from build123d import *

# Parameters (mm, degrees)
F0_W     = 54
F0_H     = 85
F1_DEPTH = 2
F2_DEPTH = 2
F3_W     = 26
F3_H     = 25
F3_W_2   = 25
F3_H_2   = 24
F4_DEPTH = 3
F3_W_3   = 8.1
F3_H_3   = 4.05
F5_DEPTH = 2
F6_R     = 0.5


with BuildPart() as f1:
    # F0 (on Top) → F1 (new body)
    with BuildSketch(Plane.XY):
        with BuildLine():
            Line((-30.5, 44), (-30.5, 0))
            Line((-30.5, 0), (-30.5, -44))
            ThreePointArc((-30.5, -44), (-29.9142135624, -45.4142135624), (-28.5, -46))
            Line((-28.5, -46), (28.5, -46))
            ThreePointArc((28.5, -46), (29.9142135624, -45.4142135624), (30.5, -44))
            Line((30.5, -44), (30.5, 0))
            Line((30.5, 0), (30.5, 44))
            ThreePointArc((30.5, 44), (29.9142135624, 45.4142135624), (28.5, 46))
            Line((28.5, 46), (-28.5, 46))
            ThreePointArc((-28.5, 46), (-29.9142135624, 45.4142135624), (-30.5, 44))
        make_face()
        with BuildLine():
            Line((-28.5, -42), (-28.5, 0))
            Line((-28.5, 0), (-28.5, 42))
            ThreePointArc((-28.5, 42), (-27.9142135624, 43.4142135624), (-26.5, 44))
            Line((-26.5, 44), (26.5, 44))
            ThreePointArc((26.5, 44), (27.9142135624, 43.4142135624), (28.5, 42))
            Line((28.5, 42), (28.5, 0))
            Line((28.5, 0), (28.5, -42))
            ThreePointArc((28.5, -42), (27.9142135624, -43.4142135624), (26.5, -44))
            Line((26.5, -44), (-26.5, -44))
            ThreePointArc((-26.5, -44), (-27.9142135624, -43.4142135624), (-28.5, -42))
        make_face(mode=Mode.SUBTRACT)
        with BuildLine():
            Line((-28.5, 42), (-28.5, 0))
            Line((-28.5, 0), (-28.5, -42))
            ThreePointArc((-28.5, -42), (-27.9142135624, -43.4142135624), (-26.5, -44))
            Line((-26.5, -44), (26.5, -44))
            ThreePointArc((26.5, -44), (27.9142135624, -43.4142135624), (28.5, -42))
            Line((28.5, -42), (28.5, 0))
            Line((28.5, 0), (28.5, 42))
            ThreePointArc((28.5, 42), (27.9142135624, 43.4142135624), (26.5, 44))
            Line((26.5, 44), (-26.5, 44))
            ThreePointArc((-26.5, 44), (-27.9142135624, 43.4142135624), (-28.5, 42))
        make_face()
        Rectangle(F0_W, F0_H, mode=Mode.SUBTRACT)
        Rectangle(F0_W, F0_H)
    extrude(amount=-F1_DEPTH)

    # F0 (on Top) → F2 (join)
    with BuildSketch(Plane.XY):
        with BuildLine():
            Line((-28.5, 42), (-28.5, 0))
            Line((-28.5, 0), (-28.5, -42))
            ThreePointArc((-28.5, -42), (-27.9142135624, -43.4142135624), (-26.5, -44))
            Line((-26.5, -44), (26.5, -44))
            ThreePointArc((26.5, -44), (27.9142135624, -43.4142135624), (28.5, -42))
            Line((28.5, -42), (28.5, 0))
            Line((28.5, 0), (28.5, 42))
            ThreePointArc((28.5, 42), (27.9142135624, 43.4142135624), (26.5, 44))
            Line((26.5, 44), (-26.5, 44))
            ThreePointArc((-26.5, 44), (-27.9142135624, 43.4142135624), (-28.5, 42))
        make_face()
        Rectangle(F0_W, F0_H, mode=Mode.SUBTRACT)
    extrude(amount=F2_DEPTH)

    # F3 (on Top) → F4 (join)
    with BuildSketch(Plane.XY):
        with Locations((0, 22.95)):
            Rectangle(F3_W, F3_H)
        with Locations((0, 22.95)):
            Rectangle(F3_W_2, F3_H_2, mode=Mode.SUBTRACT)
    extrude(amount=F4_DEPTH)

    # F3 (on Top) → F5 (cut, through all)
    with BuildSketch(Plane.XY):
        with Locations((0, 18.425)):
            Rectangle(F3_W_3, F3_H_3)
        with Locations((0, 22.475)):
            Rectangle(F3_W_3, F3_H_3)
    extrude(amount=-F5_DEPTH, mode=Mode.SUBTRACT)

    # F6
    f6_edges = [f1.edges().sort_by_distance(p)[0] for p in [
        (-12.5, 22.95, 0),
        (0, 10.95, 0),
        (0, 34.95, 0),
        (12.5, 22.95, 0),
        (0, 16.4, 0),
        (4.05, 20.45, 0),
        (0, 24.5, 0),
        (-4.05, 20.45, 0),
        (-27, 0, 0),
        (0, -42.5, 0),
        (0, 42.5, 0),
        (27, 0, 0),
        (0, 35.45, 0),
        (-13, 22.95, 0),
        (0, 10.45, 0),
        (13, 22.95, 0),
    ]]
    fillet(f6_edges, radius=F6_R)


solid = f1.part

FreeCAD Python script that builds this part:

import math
import FreeCAD as App
import Part
import Sketcher


def edges_at(feature, points):
    """Names of the edges that pass closest to the given points."""
    edges = feature.Shape.Edges
    near = lambda p: min(range(len(edges)), key=lambda i: edges[i].distToShape(Part.Vertex(*p))[0])
    return sorted({f"Edge{near(p) + 1}" for p in points})

doc = App.newDocument("Part")
params = doc.addObject("Spreadsheet::Sheet", "Params")
for row, (alias, value) in enumerate([
    ("sketch1_radius", "2 mm"),
    ("sketch1_width", "57 mm"),
    ("sketch1_height", "88 mm"),
    ("pad1_length", "2 mm"),
    ("sketch2_radius", "2 mm"),
    ("sketch2_width", "53 mm"),
    ("sketch2_width2", "54 mm"),
    ("sketch2_height", "84 mm"),
    ("sketch2_height2", "85 mm"),
    ("pad2_length", "2 mm"),
    ("sketch3_width", "26 mm"),
    ("sketch3_width2", "25 mm"),
    ("sketch3_height", "24 mm"),
    ("pad3_length", "3 mm"),
    ("sketch4_width", "8.1 mm"),
    ("fillet_radius", "0.5 mm"),
], start=1):
    params.set(f"A{row}", alias)
    params.set(f"B{row}", "=" + value)
    params.setAlias(f"B{row}", alias)

body = doc.addObject("PartDesign::Body", "Body")

# Sketch on XY plane
sketch1 = doc.addObject("Sketcher::SketchObject", "Sketch")
body.addObject(sketch1)
sketch1.AttachmentSupport = (doc.XY_Plane, [""])
sketch1.MapMode = "FlatFace"
sketch1.addGeometry(Part.LineSegment(App.Vector(-30.5, 44, 0), App.Vector(-30.5, -44, 0)), False)
sketch1.addGeometry(Part.ArcOfCircle(Part.Circle(App.Vector(-28.5, -44, 0), App.Vector(0, 0, 1), 2), math.radians(180), math.radians(270)), False)
sketch1.addGeometry(Part.LineSegment(App.Vector(-28.5, -46, 0), App.Vector(28.5, -46, 0)), False)
sketch1.addGeometry(Part.ArcOfCircle(Part.Circle(App.Vector(28.5, -44, 0), App.Vector(0, 0, 1), 2), math.radians(-90), math.radians(0)), False)
sketch1.addGeometry(Part.LineSegment(App.Vector(30.5, -44, 0), App.Vector(30.5, 44, 0)), False)
sketch1.addGeometry(Part.ArcOfCircle(Part.Circle(App.Vector(28.5, 44, 0), App.Vector(0, 0, 1), 2), math.radians(0), math.radians(90)), False)
sketch1.addGeometry(Part.LineSegment(App.Vector(28.5, 46, 0), App.Vector(-28.5, 46, 0)), False)
sketch1.addGeometry(Part.ArcOfCircle(Part.Circle(App.Vector(-28.5, 44, 0), App.Vector(0, 0, 1), 2), math.radians(90), math.radians(180)), False)
sketch1.addConstraint(Sketcher.Constraint("Tangent", 0, 2, 1, 1))
sketch1.addConstraint(Sketcher.Constraint("Tangent", 1, 2, 2, 1))
sketch1.addConstraint(Sketcher.Constraint("Tangent", 2, 2, 3, 1))
sketch1.addConstraint(Sketcher.Constraint("Tangent", 3, 2, 4, 1))
sketch1.addConstraint(Sketcher.Constraint("Tangent", 4, 2, 5, 1))
sketch1.addConstraint(Sketcher.Constraint("Tangent", 5, 2, 6, 1))
sketch1.addConstraint(Sketcher.Constraint("Tangent", 6, 2, 7, 1))
sketch1.addConstraint(Sketcher.Constraint("Tangent", 7, 2, 0, 1))
sketch1.addConstraint(Sketcher.Constraint("Vertical", 0))
sketch1.addConstraint(Sketcher.Constraint("Horizontal", 2))
sketch1.addConstraint(Sketcher.Constraint("Vertical", 4))
sketch1.addConstraint(Sketcher.Constraint("Horizontal", 6))
sketch1.addConstraint(Sketcher.Constraint("Equal", 1, 3))
sketch1.addConstraint(Sketcher.Constraint("Equal", 3, 5))
sketch1.addConstraint(Sketcher.Constraint("Equal", 5, 7))
sketch1.addConstraint(Sketcher.Constraint("Symmetric", 1, 3, 5, 3, -1, 1))
sketch1.addConstraint(Sketcher.Constraint("Radius", 1, 2.0))
sketch1.addConstraint(Sketcher.Constraint("DistanceX", 2, 1, 2, 2, 57.0))
sketch1.addConstraint(Sketcher.Constraint("DistanceY", 0, 2, 0, 1, 88.0))
sketch1.setExpression("Constraints[16]", "Params.sketch1_radius")
sketch1.setExpression("Constraints[17]", "Params.sketch1_width")
sketch1.setExpression("Constraints[18]", "Params.sketch1_height")
pad1 = doc.addObject("PartDesign::Pad", "Pad")
body.addObject(pad1)
pad1.Profile = sketch1
pad1.setExpression("Length", "Params.pad1_length")
pad1.Reversed = True

# Sketch on XY plane
sketch2 = doc.addObject("Sketcher::SketchObject", "Sketch001")
body.addObject(sketch2)
sketch2.AttachmentSupport = (doc.XY_Plane, [""])
sketch2.MapMode = "FlatFace"
sketch2.addGeometry(Part.LineSegment(App.Vector(-28.5, 42, 0), App.Vector(-28.5, -42, 0)), False)
sketch2.addGeometry(Part.ArcOfCircle(Part.Circle(App.Vector(-26.5, -42, 0), App.Vector(0, 0, 1), 2), math.radians(180), math.radians(270)), False)
sketch2.addGeometry(Part.LineSegment(App.Vector(-26.5, -44, 0), App.Vector(26.5, -44, 0)), False)
sketch2.addGeometry(Part.ArcOfCircle(Part.Circle(App.Vector(26.5, -42, 0), App.Vector(0, 0, 1), 2), math.radians(-90), math.radians(0)), False)
sketch2.addGeometry(Part.LineSegment(App.Vector(28.5, -42, 0), App.Vector(28.5, 42, 0)), False)
sketch2.addGeometry(Part.ArcOfCircle(Part.Circle(App.Vector(26.5, 42, 0), App.Vector(0, 0, 1), 2), math.radians(0), math.radians(90)), False)
sketch2.addGeometry(Part.LineSegment(App.Vector(26.5, 44, 0), App.Vector(-26.5, 44, 0)), False)
sketch2.addGeometry(Part.ArcOfCircle(Part.Circle(App.Vector(-26.5, 42, 0), App.Vector(0, 0, 1), 2), math.radians(90), math.radians(180)), False)
sketch2.addGeometry(Part.LineSegment(App.Vector(27, -42.5, 0), App.Vector(-27, -42.5, 0)), False)
sketch2.addGeometry(Part.LineSegment(App.Vector(-27, -42.5, 0), App.Vector(-27, 42.5, 0)), False)
sketch2.addGeometry(Part.LineSegment(App.Vector(-27, 42.5, 0), App.Vector(27, 42.5, 0)), False)
sketch2.addGeometry(Part.LineSegment(App.Vector(27, 42.5, 0), App.Vector(27, -42.5, 0)), False)
sketch2.addConstraint(Sketcher.Constraint("Tangent", 0, 2, 1, 1))
sketch2.addConstraint(Sketcher.Constraint("Tangent", 1, 2, 2, 1))
sketch2.addConstraint(Sketcher.Constraint("Tangent", 2, 2, 3, 1))
sketch2.addConstraint(Sketcher.Constraint("Tangent", 3, 2, 4, 1))
sketch2.addConstraint(Sketcher.Constraint("Tangent", 4, 2, 5, 1))
sketch2.addConstraint(Sketcher.Constraint("Tangent", 5, 2, 6, 1))
sketch2.addConstraint(Sketcher.Constraint("Tangent", 6, 2, 7, 1))
sketch2.addConstraint(Sketcher.Constraint("Tangent", 7, 2, 0, 1))
sketch2.addConstraint(Sketcher.Constraint("Coincident", 8, 2, 9, 1))
sketch2.addConstraint(Sketcher.Constraint("Coincident", 9, 2, 10, 1))
sketch2.addConstraint(Sketcher.Constraint("Coincident", 10, 2, 11, 1))
sketch2.addConstraint(Sketcher.Constraint("Coincident", 11, 2, 8, 1))
sketch2.addConstraint(Sketcher.Constraint("Vertical", 0))
sketch2.addConstraint(Sketcher.Constraint("Horizontal", 2))
sketch2.addConstraint(Sketcher.Constraint("Vertical", 4))
sketch2.addConstraint(Sketcher.Constraint("Horizontal", 6))
sketch2.addConstraint(Sketcher.Constraint("Horizontal", 8))
sketch2.addConstraint(Sketcher.Constraint("Vertical", 9))
sketch2.addConstraint(Sketcher.Constraint("Horizontal", 10))
sketch2.addConstraint(Sketcher.Constraint("Vertical", 11))
sketch2.addConstraint(Sketcher.Constraint("Equal", 1, 3))
sketch2.addConstraint(Sketcher.Constraint("Equal", 3, 5))
sketch2.addConstraint(Sketcher.Constraint("Equal", 5, 7))
sketch2.addConstraint(Sketcher.Constraint("Symmetric", 1, 3, 5, 3, -1, 1))
sketch2.addConstraint(Sketcher.Constraint("Symmetric", 8, 2, 10, 2, -1, 1))
sketch2.addConstraint(Sketcher.Constraint("Radius", 1, 2.0))
sketch2.addConstraint(Sketcher.Constraint("DistanceX", 2, 1, 2, 2, 53.0))
sketch2.addConstraint(Sketcher.Constraint("DistanceX", 8, 2, 8, 1, 54.0))
sketch2.addConstraint(Sketcher.Constraint("DistanceY", 0, 2, 0, 1, 84.0))
sketch2.addConstraint(Sketcher.Constraint("DistanceY", 9, 1, 9, 2, 85.0))
sketch2.setExpression("Constraints[25]", "Params.sketch2_radius")
sketch2.setExpression("Constraints[26]", "Params.sketch2_width")
sketch2.setExpression("Constraints[27]", "Params.sketch2_width2")
sketch2.setExpression("Constraints[28]", "Params.sketch2_height")
sketch2.setExpression("Constraints[29]", "Params.sketch2_height2")
pad2 = doc.addObject("PartDesign::Pad", "Pad001")
body.addObject(pad2)
pad2.Profile = sketch2
pad2.setExpression("Length", "Params.pad2_length")

# Sketch on XY plane
sketch3 = doc.addObject("Sketcher::SketchObject", "Sketch002")
body.addObject(sketch3)
sketch3.AttachmentSupport = (doc.XY_Plane, [""])
sketch3.MapMode = "FlatFace"
sketch3.addGeometry(Part.LineSegment(App.Vector(-13, 35, 0), App.Vector(-13, 10, 0)), False)
sketch3.addGeometry(Part.LineSegment(App.Vector(-13, 10, 0), App.Vector(13, 10, 0)), False)
sketch3.addGeometry(Part.LineSegment(App.Vector(13, 10, 0), App.Vector(13, 35, 0)), False)
sketch3.addGeometry(Part.LineSegment(App.Vector(13, 35, 0), App.Vector(-13, 35, 0)), False)
sketch3.addGeometry(Part.LineSegment(App.Vector(12, 11, 0), App.Vector(-12, 11, 0)), False)
sketch3.addGeometry(Part.LineSegment(App.Vector(-12, 11, 0), App.Vector(-12, 35, 0)), False)
sketch3.addGeometry(Part.LineSegment(App.Vector(-12, 35, 0), App.Vector(12, 35, 0)), False)
sketch3.addGeometry(Part.LineSegment(App.Vector(12, 35, 0), App.Vector(12, 11, 0)), False)
sketch3.addConstraint(Sketcher.Constraint("Coincident", 0, 2, 1, 1))
sketch3.addConstraint(Sketcher.Constraint("Coincident", 1, 2, 2, 1))
sketch3.addConstraint(Sketcher.Constraint("Coincident", 2, 2, 3, 1))
sketch3.addConstraint(Sketcher.Constraint("Coincident", 3, 2, 0, 1))
sketch3.addConstraint(Sketcher.Constraint("Coincident", 4, 2, 5, 1))
sketch3.addConstraint(Sketcher.Constraint("Coincident", 5, 2, 6, 1))
sketch3.addConstraint(Sketcher.Constraint("Coincident", 6, 2, 7, 1))
sketch3.addConstraint(Sketcher.Constraint("Coincident", 7, 2, 4, 1))
sketch3.addConstraint(Sketcher.Constraint("Vertical", 0))
sketch3.addConstraint(Sketcher.Constraint("Horizontal", 1))
sketch3.addConstraint(Sketcher.Constraint("Vertical", 2))
sketch3.addConstraint(Sketcher.Constraint("Horizontal", 3))
sketch3.addConstraint(Sketcher.Constraint("Horizontal", 4))
sketch3.addConstraint(Sketcher.Constraint("Vertical", 5))
sketch3.addConstraint(Sketcher.Constraint("Horizontal", 6))
sketch3.addConstraint(Sketcher.Constraint("Vertical", 7))
sketch3.addConstraint(Sketcher.Constraint("Equal", 6, 0))
sketch3.addConstraint(Sketcher.Constraint("DistanceX", 1, 1, 1, 2, 26.0))
sketch3.addConstraint(Sketcher.Constraint("DistanceX", 4, 2, 4, 1, 25.0))
sketch3.addConstraint(Sketcher.Constraint("DistanceY", 5, 1, 5, 2, 24.0))
sketch3.addConstraint(Sketcher.Constraint("DistanceX", 0, 2, -1, 1, 13.0))
sketch3.addConstraint(Sketcher.Constraint("DistanceX", 4, 2, -1, 1, 12.5))
sketch3.addConstraint(Sketcher.Constraint("DistanceY", 0, 2, 4, 2, 0.5))
sketch3.addConstraint(Sketcher.Constraint("DistanceY", -1, 1, 0, 2, 10.45))
sketch3.setExpression("Constraints[17]", "Params.sketch3_width")
sketch3.setExpression("Constraints[18]", "Params.sketch3_width2")
sketch3.setExpression("Constraints[19]", "Params.sketch3_height")
pad3 = doc.addObject("PartDesign::Pad", "Pad002")
body.addObject(pad3)
pad3.Profile = sketch3
pad3.setExpression("Length", "Params.pad3_length")

# Sketch on XY plane
sketch4 = doc.addObject("Sketcher::SketchObject", "Sketch003")
body.addObject(sketch4)
sketch4.AttachmentSupport = (doc.XY_Plane, [""])
sketch4.MapMode = "FlatFace"
sketch4.addGeometry(Part.LineSegment(App.Vector(-4, 16, 0), App.Vector(4, 16, 0)), False)
sketch4.addGeometry(Part.LineSegment(App.Vector(4, 16, 0), App.Vector(4, 24, 0)), False)
sketch4.addGeometry(Part.LineSegment(App.Vector(4, 24, 0), App.Vector(-4, 24, 0)), False)
sketch4.addGeometry(Part.LineSegment(App.Vector(-4, 24, 0), App.Vector(-4, 16, 0)), False)
sketch4.addConstraint(Sketcher.Constraint("Coincident", 0, 2, 1, 1))
sketch4.addConstraint(Sketcher.Constraint("Coincident", 1, 2, 2, 1))
sketch4.addConstraint(Sketcher.Constraint("Coincident", 2, 2, 3, 1))
sketch4.addConstraint(Sketcher.Constraint("Coincident", 3, 2, 0, 1))
sketch4.addConstraint(Sketcher.Constraint("Horizontal", 0))
sketch4.addConstraint(Sketcher.Constraint("Vertical", 1))
sketch4.addConstraint(Sketcher.Constraint("Horizontal", 2))
sketch4.addConstraint(Sketcher.Constraint("Vertical", 3))
sketch4.addConstraint(Sketcher.Constraint("Equal", 2, 1))
sketch4.addConstraint(Sketcher.Constraint("DistanceX", 0, 1, 0, 2, 8.1))
sketch4.addConstraint(Sketcher.Constraint("DistanceY", -1, 1, 0, 2, 16.4))
sketch4.addConstraint(Sketcher.Constraint("DistanceX", -1, 1, 0, 2, 4.05))
sketch4.setExpression("Constraints[9]", "Params.sketch4_width")
pocket1 = doc.addObject("PartDesign::Pocket", "Pocket")
body.addObject(pocket1)
pocket1.Profile = sketch4
pocket1.Type = "ThroughAll"
doc.recompute()

fillet = doc.addObject("PartDesign::Fillet", "Fillet")
body.addObject(fillet)
fillet.Base = (pocket1, edges_at(pocket1, [
    (-12.5, 22.95, 0),
    (0, 10.95, 0),
    (0, 34.95, 0),
    (12.5, 22.95, 0),
    (0, 16.4, 0),
    (4.05, 20.45, 0),
    (0, 24.5, 0),
    (-4.05, 20.45, 0),
    (-27, 0, 0),
    (0, -42.5, 0),
    (0, 42.5, 0),
    (27, 0, 0),
    (0, 35.45, 0),
    (-13, 22.95, 0),
    (0, 10.45, 0),
    (13, 22.95, 0),
]))
fillet.setExpression("Radius", "Params.fillet_radius")

doc.recompute()
